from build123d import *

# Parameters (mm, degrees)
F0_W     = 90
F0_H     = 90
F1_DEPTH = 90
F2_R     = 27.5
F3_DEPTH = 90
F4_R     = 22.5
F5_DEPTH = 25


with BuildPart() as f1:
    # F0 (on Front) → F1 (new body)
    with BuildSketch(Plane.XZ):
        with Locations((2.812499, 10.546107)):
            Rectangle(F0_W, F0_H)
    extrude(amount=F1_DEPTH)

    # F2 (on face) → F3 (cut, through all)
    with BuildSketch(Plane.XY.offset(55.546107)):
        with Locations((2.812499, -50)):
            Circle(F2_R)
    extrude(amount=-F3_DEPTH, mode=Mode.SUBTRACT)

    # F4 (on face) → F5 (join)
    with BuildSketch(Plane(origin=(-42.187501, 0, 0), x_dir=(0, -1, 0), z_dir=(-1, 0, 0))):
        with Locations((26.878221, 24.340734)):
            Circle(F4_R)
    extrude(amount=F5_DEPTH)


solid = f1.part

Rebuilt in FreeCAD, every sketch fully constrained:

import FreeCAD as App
import Part
import Sketcher
from FreeCAD import Vector

doc = App.newDocument("Part")
body = doc.addObject("PartDesign::Body", "Body")

# Sketch on XZ plane
sketch1 = body.newObject("Sketcher::SketchObject", "Sketch")
sketch1.AttachmentSupport = (doc.getObject("XZ_Plane"), [""])
sketch1.MapMode = "FlatFace"
sketch1.addGeometry(Part.LineSegment(Vector(-42.187501, 55.546107, 0), Vector(-42.187501, -34.453893, 0)), False)
sketch1.addGeometry(Part.LineSegment(Vector(-42.187501, -34.453893, 0), Vector(47.812499, -34.453893, 0)), False)
sketch1.addGeometry(Part.LineSegment(Vector(47.812499, -34.453893, 0), Vector(47.812499, 55.546107, 0)), False)
sketch1.addGeometry(Part.LineSegment(Vector(47.812499, 55.546107, 0), Vector(-42.187501, 55.546107, 0)), False)
sketch1.addConstraint(Sketcher.Constraint("Coincident", 0, 2, 1, 1))
sketch1.addConstraint(Sketcher.Constraint("Coincident", 1, 2, 2, 1))
sketch1.addConstraint(Sketcher.Constraint("Coincident", 2, 2, 3, 1))
sketch1.addConstraint(Sketcher.Constraint("Coincident", 3, 2, 0, 1))
sketch1.addConstraint(Sketcher.Constraint("Vertical", 0))
sketch1.addConstraint(Sketcher.Constraint("Horizontal", 1))
sketch1.addConstraint(Sketcher.Constraint("Vertical", 2))
sketch1.addConstraint(Sketcher.Constraint("Horizontal", 3))
sketch1.addConstraint(Sketcher.Constraint("Equal", 3, 0))
sketch1.addConstraint(Sketcher.Constraint("DistanceX", 1, 1, 1, 2, 90.0))
sketch1.addConstraint(Sketcher.Constraint("DistanceX", 0, 2, -1, 1, 42.187501))
sketch1.addConstraint(Sketcher.Constraint("DistanceY", 0, 2, -1, 1, 34.453893))
pad1 = body.newObject("PartDesign::Pad", "Pad")
pad1.Profile = sketch1
pad1.Length = 90

# Sketch on XY plane
sketch2 = body.newObject("Sketcher::SketchObject", "Sketch001")
sketch2.AttachmentSupport = (doc.getObject("XY_Plane"), [""])
sketch2.MapMode = "FlatFace"
sketch2.AttachmentOffset = App.Placement(Vector(0, 0, 55.546107), App.Rotation())
sketch2.addGeometry(Part.Circle(Vector(2.812499, -50, 0), Vector(0, 0, 1), 27.5), False)
sketch2.addConstraint(Sketcher.Constraint("Diameter", 0, 55.0))
sketch2.addConstraint(Sketcher.Constraint("DistanceY", 0, 3, -1, 1, 50.0))
sketch2.addConstraint(Sketcher.Constraint("DistanceX", -1, 1, 0, 3, 2.812499))
pocket1 = body.newObject("PartDesign::Pocket", "Pocket")
pocket1.Profile = sketch2
pocket1.Type = "ThroughAll"

# Sketch on YZ plane
sketch3 = body.newObject("Sketcher::SketchObject", "Sketch002")
sketch3.AttachmentSupport = (doc.getObject("YZ_Plane"), [""])
sketch3.MapMode = "FlatFace"
sketch3.AttachmentOffset = App.Placement(Vector(0, 0, -42.187501), App.Rotation())
sketch3.addGeometry(Part.Circle(Vector(-26.878221, 24.340734, 0), Vector(0, 0, 1), 22.5), False)
sketch3.addConstraint(Sketcher.Constraint("Diameter", 0, 45.0))
sketch3.addConstraint(Sketcher.Constraint("DistanceX", 0, 3, -1, 1, 26.878221))
sketch3.addConstraint(Sketcher.Constraint("DistanceY", -1, 1, 0, 3, 24.340734))
pad2 = body.newObject("PartDesign::Pad", "Pad001")
pad2.Profile = sketch3
pad2.Length = 25
pad2.Reversed = True

doc.recompute()
